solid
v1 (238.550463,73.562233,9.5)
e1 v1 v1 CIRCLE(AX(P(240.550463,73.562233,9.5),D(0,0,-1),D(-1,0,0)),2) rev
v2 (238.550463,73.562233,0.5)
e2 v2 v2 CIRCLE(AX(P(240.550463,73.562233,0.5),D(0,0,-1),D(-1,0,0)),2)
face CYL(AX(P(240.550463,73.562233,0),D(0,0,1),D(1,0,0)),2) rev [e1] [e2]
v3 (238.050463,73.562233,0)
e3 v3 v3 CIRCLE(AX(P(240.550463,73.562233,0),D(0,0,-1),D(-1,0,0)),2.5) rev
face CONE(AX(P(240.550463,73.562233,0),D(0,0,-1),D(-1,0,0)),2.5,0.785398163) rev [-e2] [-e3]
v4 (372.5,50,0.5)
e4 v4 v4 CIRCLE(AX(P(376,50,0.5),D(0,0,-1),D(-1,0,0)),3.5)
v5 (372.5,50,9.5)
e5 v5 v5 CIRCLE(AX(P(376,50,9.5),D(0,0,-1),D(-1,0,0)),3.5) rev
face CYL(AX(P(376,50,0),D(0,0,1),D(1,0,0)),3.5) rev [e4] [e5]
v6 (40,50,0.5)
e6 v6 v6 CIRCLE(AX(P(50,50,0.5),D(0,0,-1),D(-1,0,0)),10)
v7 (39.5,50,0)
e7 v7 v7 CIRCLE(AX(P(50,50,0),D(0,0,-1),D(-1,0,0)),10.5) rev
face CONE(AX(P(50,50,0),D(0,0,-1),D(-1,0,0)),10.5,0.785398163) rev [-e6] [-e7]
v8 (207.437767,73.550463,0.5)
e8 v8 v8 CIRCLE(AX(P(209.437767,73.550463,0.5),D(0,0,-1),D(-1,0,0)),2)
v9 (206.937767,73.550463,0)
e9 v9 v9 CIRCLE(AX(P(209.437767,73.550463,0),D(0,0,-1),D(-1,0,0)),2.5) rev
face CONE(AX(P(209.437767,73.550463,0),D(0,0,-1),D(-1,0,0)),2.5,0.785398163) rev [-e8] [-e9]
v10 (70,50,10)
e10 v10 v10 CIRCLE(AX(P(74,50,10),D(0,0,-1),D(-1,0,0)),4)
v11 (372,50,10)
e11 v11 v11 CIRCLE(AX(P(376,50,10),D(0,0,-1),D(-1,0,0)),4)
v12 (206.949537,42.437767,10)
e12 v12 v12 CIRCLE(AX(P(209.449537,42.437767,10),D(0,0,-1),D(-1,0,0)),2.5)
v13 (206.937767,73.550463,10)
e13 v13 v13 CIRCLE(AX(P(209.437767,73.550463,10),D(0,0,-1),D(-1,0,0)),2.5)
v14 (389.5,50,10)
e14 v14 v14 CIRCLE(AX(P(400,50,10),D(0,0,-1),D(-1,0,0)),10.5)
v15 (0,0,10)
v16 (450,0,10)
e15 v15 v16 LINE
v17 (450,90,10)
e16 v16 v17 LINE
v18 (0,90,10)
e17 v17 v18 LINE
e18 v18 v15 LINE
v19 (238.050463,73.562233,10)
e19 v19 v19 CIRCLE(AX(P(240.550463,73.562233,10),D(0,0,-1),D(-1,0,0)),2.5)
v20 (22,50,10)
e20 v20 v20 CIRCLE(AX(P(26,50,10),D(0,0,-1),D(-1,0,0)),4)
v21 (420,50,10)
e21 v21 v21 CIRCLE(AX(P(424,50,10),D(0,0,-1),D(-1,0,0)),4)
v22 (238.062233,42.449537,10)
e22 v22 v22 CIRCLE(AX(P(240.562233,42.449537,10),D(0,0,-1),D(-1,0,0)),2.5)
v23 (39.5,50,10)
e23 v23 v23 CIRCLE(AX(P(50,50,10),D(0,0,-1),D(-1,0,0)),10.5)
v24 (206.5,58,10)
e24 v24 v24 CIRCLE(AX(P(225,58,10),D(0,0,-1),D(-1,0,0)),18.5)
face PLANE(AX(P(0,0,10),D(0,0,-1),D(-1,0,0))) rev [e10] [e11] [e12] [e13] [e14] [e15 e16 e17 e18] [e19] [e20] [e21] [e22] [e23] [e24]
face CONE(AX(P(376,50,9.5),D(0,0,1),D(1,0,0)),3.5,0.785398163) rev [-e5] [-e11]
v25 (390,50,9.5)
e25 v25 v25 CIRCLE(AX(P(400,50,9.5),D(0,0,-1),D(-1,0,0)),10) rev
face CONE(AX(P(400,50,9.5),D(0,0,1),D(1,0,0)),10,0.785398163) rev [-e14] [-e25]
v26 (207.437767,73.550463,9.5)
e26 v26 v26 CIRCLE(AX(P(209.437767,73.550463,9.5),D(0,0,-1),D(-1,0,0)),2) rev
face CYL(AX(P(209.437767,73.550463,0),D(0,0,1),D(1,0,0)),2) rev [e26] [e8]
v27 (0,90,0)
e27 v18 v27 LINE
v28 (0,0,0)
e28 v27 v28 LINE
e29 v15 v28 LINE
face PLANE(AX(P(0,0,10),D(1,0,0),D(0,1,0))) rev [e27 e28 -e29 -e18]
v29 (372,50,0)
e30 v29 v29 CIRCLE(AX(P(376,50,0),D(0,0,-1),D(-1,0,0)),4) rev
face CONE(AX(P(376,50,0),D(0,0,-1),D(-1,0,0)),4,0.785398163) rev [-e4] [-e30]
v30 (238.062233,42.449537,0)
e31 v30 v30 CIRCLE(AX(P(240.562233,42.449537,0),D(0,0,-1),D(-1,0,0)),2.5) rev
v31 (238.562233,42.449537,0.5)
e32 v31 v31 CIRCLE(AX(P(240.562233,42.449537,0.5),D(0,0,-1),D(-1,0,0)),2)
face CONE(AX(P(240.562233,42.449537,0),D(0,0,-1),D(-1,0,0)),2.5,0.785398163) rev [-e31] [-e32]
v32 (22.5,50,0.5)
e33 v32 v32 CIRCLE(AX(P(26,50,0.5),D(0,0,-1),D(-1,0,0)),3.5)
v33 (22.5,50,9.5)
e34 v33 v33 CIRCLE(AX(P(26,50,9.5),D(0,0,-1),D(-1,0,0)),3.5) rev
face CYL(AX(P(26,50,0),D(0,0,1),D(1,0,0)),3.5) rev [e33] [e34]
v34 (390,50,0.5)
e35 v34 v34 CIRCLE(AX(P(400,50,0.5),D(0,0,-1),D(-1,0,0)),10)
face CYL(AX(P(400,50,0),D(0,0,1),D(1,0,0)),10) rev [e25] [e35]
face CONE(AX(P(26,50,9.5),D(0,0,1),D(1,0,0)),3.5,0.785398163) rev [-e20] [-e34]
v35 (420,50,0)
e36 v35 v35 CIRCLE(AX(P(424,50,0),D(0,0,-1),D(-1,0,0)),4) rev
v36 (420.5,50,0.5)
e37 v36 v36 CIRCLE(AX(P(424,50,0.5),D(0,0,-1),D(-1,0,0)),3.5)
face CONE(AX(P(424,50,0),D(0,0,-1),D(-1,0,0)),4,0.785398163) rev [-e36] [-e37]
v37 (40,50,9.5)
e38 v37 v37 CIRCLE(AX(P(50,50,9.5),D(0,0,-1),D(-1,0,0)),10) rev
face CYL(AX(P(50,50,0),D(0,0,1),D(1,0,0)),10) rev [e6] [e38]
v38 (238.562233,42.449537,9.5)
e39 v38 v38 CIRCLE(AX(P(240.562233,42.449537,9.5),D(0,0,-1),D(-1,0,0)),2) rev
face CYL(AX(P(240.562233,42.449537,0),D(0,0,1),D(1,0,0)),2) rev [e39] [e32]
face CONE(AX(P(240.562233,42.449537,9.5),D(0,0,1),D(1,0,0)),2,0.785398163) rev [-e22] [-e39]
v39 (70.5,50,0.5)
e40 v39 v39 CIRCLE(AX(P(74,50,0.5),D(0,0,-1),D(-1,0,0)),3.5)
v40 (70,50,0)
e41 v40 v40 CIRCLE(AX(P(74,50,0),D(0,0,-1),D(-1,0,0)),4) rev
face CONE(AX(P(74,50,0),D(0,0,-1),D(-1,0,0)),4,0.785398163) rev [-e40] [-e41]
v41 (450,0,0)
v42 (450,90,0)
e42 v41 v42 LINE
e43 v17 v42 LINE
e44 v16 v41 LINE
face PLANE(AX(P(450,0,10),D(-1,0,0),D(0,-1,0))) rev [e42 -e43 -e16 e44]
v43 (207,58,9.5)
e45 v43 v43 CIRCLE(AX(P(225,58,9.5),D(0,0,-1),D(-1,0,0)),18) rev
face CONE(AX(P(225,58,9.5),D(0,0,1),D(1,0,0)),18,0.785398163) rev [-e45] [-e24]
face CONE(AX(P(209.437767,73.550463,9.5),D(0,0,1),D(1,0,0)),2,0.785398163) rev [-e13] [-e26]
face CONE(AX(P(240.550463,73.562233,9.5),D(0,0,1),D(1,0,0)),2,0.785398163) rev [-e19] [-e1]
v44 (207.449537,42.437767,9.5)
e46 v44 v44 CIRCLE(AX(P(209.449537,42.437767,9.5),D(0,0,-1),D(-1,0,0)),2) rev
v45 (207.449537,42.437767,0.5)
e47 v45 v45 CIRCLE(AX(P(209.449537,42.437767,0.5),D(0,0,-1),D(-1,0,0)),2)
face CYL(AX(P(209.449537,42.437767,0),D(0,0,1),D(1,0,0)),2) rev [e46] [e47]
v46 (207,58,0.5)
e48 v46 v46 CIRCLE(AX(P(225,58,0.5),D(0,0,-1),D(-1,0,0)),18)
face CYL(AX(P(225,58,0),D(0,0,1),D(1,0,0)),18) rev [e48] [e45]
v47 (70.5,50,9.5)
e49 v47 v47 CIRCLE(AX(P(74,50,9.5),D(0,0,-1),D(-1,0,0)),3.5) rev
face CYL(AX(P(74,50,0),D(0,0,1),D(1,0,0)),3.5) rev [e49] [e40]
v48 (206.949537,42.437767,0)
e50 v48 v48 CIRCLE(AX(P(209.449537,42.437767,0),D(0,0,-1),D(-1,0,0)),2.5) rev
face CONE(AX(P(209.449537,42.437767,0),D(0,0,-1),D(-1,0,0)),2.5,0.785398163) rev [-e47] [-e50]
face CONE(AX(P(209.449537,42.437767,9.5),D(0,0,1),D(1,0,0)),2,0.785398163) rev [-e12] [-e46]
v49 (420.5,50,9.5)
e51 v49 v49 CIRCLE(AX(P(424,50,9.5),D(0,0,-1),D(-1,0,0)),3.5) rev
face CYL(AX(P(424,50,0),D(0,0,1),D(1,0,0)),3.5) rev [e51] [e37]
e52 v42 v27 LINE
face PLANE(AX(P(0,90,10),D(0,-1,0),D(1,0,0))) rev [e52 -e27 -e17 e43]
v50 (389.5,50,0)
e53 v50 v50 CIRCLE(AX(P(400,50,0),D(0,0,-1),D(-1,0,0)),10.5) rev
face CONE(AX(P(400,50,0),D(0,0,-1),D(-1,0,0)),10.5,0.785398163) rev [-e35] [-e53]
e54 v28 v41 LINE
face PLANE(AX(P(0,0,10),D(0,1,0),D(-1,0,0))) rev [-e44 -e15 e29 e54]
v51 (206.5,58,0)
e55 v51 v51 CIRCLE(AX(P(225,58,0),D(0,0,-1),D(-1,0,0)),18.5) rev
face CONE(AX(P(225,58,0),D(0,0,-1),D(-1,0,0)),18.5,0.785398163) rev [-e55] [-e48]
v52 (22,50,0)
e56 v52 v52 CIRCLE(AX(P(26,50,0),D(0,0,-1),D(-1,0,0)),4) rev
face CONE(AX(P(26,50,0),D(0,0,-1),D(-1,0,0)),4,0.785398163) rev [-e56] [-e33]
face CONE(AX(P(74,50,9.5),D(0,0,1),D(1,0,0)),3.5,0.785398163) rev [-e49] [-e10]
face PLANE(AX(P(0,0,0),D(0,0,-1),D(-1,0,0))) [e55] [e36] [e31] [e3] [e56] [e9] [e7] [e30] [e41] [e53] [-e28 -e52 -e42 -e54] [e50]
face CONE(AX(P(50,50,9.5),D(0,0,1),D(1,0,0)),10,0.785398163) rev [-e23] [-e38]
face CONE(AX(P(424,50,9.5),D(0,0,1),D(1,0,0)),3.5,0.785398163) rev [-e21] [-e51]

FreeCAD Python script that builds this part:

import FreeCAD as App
import Part
import Sketcher
Q = App.Units.Quantity


def edges_at(feature, points):
    """Names of the edges that pass closest to the given points."""
    edges = feature.Shape.Edges
    near = lambda p: min(range(len(edges)), key=lambda i: edges[i].distToShape(Part.Vertex(*p))[0])
    return sorted({f"Edge{near(p) + 1}" for p in points})

doc = App.newDocument("Part")
body = doc.addObject("PartDesign::Body", "Body")

sketch1 = body.newObject("Sketcher::SketchObject", "Sketch")
sketch1.AttachmentSupport = (doc.getObject("XY_Plane"), [""])
sketch1.MapMode = "FlatFace"
sketch1.addGeometry([
    Part.LineSegment(App.Vector(0, 90, 0), App.Vector(0, 0, 0)),
    Part.LineSegment(App.Vector(0, 0, 0), App.Vector(450, 0, 0)),
    Part.LineSegment(App.Vector(450, 0, 0), App.Vector(450, 90, 0)),
    Part.LineSegment(App.Vector(450, 90, 0), App.Vector(0, 90, 0)),
], False)
sketch1.addConstraint([
    Sketcher.Constraint("Coincident", 0, 2, 1, 1),
    Sketcher.Constraint("Coincident", 1, 2, 2, 1),
    Sketcher.Constraint("Coincident", 2, 2, 3, 1),
    Sketcher.Constraint("Coincident", 3, 2, 0, 1),
    Sketcher.Constraint("Vertical", 0),
    Sketcher.Constraint("Horizontal", 1),
    Sketcher.Constraint("Vertical", 2),
    Sketcher.Constraint("Horizontal", 3),
    Sketcher.Constraint("Coincident", 0, 2, -1, 1),
    Sketcher.Constraint("DistanceX", 1, 1, 1, 2, Q("450 mm")),
    Sketcher.Constraint("DistanceY", 0, 2, 0, 1, Q("90 mm")),
])
pad1 = body.newObject("PartDesign::Pad", "Pad")
pad1.Profile = sketch1
pad1.Length = 10

sketch2 = body.newObject("Sketcher::SketchObject", "Sketch001")
sketch2.AttachmentSupport = (doc.getObject("XY_Plane"), [""])
sketch2.MapMode = "FlatFace"
sketch2.AttachmentOffset = App.Placement(App.Vector(0, 0, 10), App.Rotation())
sketch2.addGeometry([
    Part.Circle(App.Vector(225, 58, 0), App.Vector(0, 0, 1), 18),
    Part.Circle(App.Vector(209.4, 73.6, 0), App.Vector(0, 0, 1), 2),
    Part.Circle(App.Vector(240.6, 73.6, 0), App.Vector(0, 0, 1), 2),
    Part.Circle(App.Vector(240.6, 42.4, 0), App.Vector(0, 0, 1), 2),
    Part.Circle(App.Vector(209.4, 42.4, 0), App.Vector(0, 0, 1), 2),
], False)
sketch2.addConstraint([
    Sketcher.Constraint("Equal", 1, 2),
    Sketcher.Constraint("Equal", 2, 3),
    Sketcher.Constraint("Equal", 3, 4),
    Sketcher.Constraint("Diameter", 0, Q("36 mm")),
    Sketcher.Constraint("Diameter", 1, Q("4 mm")),
    Sketcher.Constraint("DistanceX", -1, 1, 0, 3, Q("225 mm")),
    Sketcher.Constraint("DistanceY", -1, 1, 0, 3, Q("58 mm")),
    Sketcher.Constraint("DistanceY", 1, 3, 2, 3, Q("0.011769 mm")),
    Sketcher.Constraint("DistanceX", 2, 3, 3, 3, Q("0.011769 mm")),
    Sketcher.Constraint("DistanceY", 4, 3, 3, 3, Q("0.011769 mm")),
    Sketcher.Constraint("DistanceX", 1, 3, 4, 3, Q("0.011769 mm")),
    Sketcher.Constraint("DistanceX", -1, 1, 1, 3, Q("209.437767 mm")),
    Sketcher.Constraint("DistanceY", -1, 1, 1, 3, Q("73.550463 mm")),
    Sketcher.Constraint("DistanceX", -1, 1, 2, 3, Q("240.550463 mm")),
    Sketcher.Constraint("DistanceY", -1, 1, 3, 3, Q("42.449537 mm")),
])
pocket1 = body.newObject("PartDesign::Pocket", "Pocket")
pocket1.Profile = sketch2
pocket1.Type = "ThroughAll"
doc.recompute()

chamfer = body.newObject("PartDesign::Chamfer", "Chamfer")
chamfer.Base = (pocket1, edges_at(pocket1, [
    (207, 58, 0),
    (207, 58, 10),
    (207.438, 73.55, 0),
    (207.438, 73.55, 10),
    (238.55, 73.562, 0),
    (238.55, 73.562, 10),
    (238.562, 42.45, 0),
    (238.562, 42.45, 10),
    (207.45, 42.438, 0),
    (207.45, 42.438, 10),
]))
chamfer.Size = 0.5

sketch3 = body.newObject("Sketcher::SketchObject", "Sketch002")
sketch3.AttachmentSupport = (doc.getObject("XY_Plane"), [""])
sketch3.MapMode = "FlatFace"
sketch3.AttachmentOffset = App.Placement(App.Vector(0, 0, 10), App.Rotation())
sketch3.addGeometry([
    Part.Circle(App.Vector(50, 50, 0), App.Vector(0, 0, 1), 10),
    Part.Circle(App.Vector(400, 50, 0), App.Vector(0, 0, 1), 10),
    Part.Circle(App.Vector(26, 50, 0), App.Vector(0, 0, 1), 3.5),
    Part.Circle(App.Vector(74, 50, 0), App.Vector(0, 0, 1), 3.5),
    Part.Circle(App.Vector(376, 50, 0), App.Vector(0, 0, 1), 3.5),
    Part.Circle(App.Vector(424, 50, 0), App.Vector(0, 0, 1), 3.5),
], False)
sketch3.addConstraint([
    Sketcher.Constraint("Equal", 0, 1),
    Sketcher.Constraint("Equal", 2, 3),
    Sketcher.Constraint("Equal", 3, 4),
    Sketcher.Constraint("Equal", 4, 5),
    Sketcher.Constraint("Horizontal", 0, 3, 1, 3),
    Sketcher.Constraint("Horizontal", 1, 3, 2, 3),
    Sketcher.Constraint("Horizontal", 2, 3, 3, 3),
    Sketcher.Constraint("Horizontal", 3, 3, 4, 3),
    Sketcher.Constraint("Horizontal", 4, 3, 5, 3),
    Sketcher.Constraint("Diameter", 0, Q("20 mm")),
    Sketcher.Constraint("Diameter", 2, Q("7 mm")),
    Sketcher.Constraint("DistanceX", -1, 1, 0, 3, Q("50 mm")),
    Sketcher.Constraint("DistanceY", -1, 1, 0, 3, Q("50 mm")),
    Sketcher.Constraint("DistanceX", -1, 1, 1, 3, Q("400 mm")),
    Sketcher.Constraint("DistanceX", -1, 1, 2, 3, Q("26 mm")),
    Sketcher.Constraint("DistanceX", -1, 1, 3, 3, Q("74 mm")),
    Sketcher.Constraint("DistanceX", -1, 1, 4, 3, Q("376 mm")),
    Sketcher.Constraint("DistanceX", -1, 1, 5, 3, Q("424 mm")),
])
pocket2 = body.newObject("PartDesign::Pocket", "Pocket001")
pocket2.Profile = sketch3
pocket2.Type = "ThroughAll"
doc.recompute()

chamfer2 = body.newObject("PartDesign::Chamfer", "Chamfer001")
chamfer2.Base = (pocket2, edges_at(pocket2, [
    (40, 50, 0),
    (40, 50, 10),
    (410, 50, 0),
    (410, 50, 10),
    (22.5, 50, 0),
    (22.5, 50, 10),
    (70.5, 50, 0),
    (70.5, 50, 10),
    (379.5, 50, 0),
    (379.5, 50, 10),
    (427.5, 50, 0),
    (427.5, 50, 10),
]))
chamfer2.Size = 0.5

doc.recompute()
